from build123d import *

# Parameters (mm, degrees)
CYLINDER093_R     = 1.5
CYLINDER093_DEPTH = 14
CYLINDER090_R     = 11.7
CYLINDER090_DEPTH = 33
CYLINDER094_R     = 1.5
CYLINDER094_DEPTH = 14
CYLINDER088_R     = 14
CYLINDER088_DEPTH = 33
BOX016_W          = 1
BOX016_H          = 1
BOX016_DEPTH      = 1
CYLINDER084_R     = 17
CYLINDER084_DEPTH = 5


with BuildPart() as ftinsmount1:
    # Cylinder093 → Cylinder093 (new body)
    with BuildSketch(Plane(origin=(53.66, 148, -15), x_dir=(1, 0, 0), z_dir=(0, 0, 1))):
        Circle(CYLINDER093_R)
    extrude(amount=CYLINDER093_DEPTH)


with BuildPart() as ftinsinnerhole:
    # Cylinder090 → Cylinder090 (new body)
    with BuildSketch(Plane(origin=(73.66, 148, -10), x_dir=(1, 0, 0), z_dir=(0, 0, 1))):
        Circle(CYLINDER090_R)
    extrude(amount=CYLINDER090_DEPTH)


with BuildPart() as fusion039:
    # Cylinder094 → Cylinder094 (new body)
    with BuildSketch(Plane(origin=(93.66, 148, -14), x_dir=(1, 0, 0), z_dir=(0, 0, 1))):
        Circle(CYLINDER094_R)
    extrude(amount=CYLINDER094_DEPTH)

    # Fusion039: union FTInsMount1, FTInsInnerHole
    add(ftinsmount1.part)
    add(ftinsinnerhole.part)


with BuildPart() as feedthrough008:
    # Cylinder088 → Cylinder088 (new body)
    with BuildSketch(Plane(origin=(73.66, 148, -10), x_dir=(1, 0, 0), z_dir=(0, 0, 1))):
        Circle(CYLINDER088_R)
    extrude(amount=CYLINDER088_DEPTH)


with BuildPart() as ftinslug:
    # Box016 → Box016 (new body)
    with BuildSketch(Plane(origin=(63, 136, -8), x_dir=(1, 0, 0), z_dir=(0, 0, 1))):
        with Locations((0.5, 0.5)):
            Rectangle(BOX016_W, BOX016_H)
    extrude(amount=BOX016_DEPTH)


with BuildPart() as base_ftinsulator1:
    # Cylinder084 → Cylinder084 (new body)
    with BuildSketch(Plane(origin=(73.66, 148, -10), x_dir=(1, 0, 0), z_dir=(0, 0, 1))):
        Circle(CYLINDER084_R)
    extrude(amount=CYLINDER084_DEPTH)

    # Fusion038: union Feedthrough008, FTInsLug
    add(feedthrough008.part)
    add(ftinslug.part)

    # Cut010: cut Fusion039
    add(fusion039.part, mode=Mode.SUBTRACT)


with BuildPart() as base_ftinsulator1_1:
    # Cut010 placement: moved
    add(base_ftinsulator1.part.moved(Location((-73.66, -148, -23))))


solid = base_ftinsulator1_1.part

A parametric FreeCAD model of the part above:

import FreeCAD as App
import Part
import Sketcher
from FreeCAD import Vector

doc = App.newDocument("Part")
body = doc.addObject("PartDesign::Body", "Body")

# Sketch on XY plane
sketch1 = body.newObject("Sketcher::SketchObject", "Sketch")
sketch1.AttachmentSupport = (doc.getObject("XY_Plane"), [""])
sketch1.MapMode = "FlatFace"
sketch1.AttachmentOffset = App.Placement(Vector(0, 0, -15), App.Rotation())
sketch1.addGeometry(Part.Circle(Vector(53.7, 148, 0), Vector(0, 0, 1), 1.5), False)
sketch1.addConstraint(Sketcher.Constraint("Diameter", 0, 3.0))
sketch1.addConstraint(Sketcher.Constraint("DistanceY", -1, 1, 0, 3, 148.0))
sketch1.addConstraint(Sketcher.Constraint("DistanceX", -1, 1, 0, 3, 53.66))
pad1 = body.newObject("PartDesign::Pad", "Pad")
pad1.Profile = sketch1
pad1.Length = 14
body2 = doc.addObject("PartDesign::Body", "Body001")

# Sketch on XY plane
sketch2 = body2.newObject("Sketcher::SketchObject", "Sketch001")
sketch2.AttachmentSupport = (doc.getObject("XY_Plane001"), [""])
sketch2.MapMode = "FlatFace"
sketch2.AttachmentOffset = App.Placement(Vector(0, 0, -10), App.Rotation())
sketch2.addGeometry(Part.Circle(Vector(74, 148, 0), Vector(0, 0, 1), 12), False)
sketch2.addConstraint(Sketcher.Constraint("Diameter", 0, 23.4))
sketch2.addConstraint(Sketcher.Constraint("DistanceY", -1, 1, 0, 3, 148.0))
sketch2.addConstraint(Sketcher.Constraint("DistanceX", -1, 1, 0, 3, 73.66))
pad2 = body2.newObject("PartDesign::Pad", "Pad001")
pad2.Profile = sketch2
pad2.Length = 33
body3 = doc.addObject("PartDesign::Body", "Body002")
body3.AllowCompound = True

# Sketch on XY plane
sketch3 = body3.newObject("Sketcher::SketchObject", "Sketch002")
sketch3.AttachmentSupport = (doc.getObject("XY_Plane002"), [""])
sketch3.MapMode = "FlatFace"
sketch3.AttachmentOffset = App.Placement(Vector(0, 0, -14), App.Rotation())
sketch3.addGeometry(Part.Circle(Vector(93.7, 148, 0), Vector(0, 0, 1), 1.5), False)
sketch3.addConstraint(Sketcher.Constraint("Diameter", 0, 3.0))
sketch3.addConstraint(Sketcher.Constraint("DistanceY", -1, 1, 0, 3, 148.0))
sketch3.addConstraint(Sketcher.Constraint("DistanceX", -1, 1, 0, 3, 93.66))
pad3 = body3.newObject("PartDesign::Pad", "Pad002")
pad3.Profile = sketch3
pad3.Length = 14
doc.recompute()

boolean = body3.newObject("PartDesign::Boolean", "Boolean")
boolean.Type = "Fuse"
boolean.addObjects([body])
doc.recompute()

boolean2 = body3.newObject("PartDesign::Boolean", "Boolean001")
boolean2.Type = "Fuse"
boolean2.addObjects([body2])
body4 = doc.addObject("PartDesign::Body", "Body003")

# Sketch on XY plane
sketch4 = body4.newObject("Sketcher::SketchObject", "Sketch003")
sketch4.AttachmentSupport = (doc.getObject("XY_Plane003"), [""])
sketch4.MapMode = "FlatFace"
sketch4.AttachmentOffset = App.Placement(Vector(0, 0, -10), App.Rotation())
sketch4.addGeometry(Part.Circle(Vector(74, 148, 0), Vector(0, 0, 1), 14), False)
sketch4.addConstraint(Sketcher.Constraint("Diameter", 0, 28.0))
sketch4.addConstraint(Sketcher.Constraint("DistanceY", -1, 1, 0, 3, 148.0))
sketch4.addConstraint(Sketcher.Constraint("DistanceX", -1, 1, 0, 3, 73.66))
pad4 = body4.newObject("PartDesign::Pad", "Pad003")
pad4.Profile = sketch4
pad4.Length = 33
body5 = doc.addObject("PartDesign::Body", "Body004")

# Sketch on XY plane
sketch5 = body5.newObject("Sketcher::SketchObject", "Sketch004")
sketch5.AttachmentSupport = (doc.getObject("XY_Plane004"), [""])
sketch5.MapMode = "FlatFace"
sketch5.AttachmentOffset = App.Placement(Vector(0, 0, -8), App.Rotation())
sketch5.addGeometry(Part.LineSegment(Vector(63, 137, 0), Vector(63, 136, 0)), False)
sketch5.addGeometry(Part.LineSegment(Vector(63, 136, 0), Vector(64, 136, 0)), False)
sketch5.addGeometry(Part.LineSegment(Vector(64, 136, 0), Vector(64, 137, 0)), False)
sketch5.addGeometry(Part.LineSegment(Vector(64, 137, 0), Vector(63, 137, 0)), False)
sketch5.addConstraint(Sketcher.Constraint("Coincident", 0, 2, 1, 1))
sketch5.addConstraint(Sketcher.Constraint("Coincident", 1, 2, 2, 1))
sketch5.addConstraint(Sketcher.Constraint("Coincident", 2, 2, 3, 1))
sketch5.addConstraint(Sketcher.Constraint("Coincident", 3, 2, 0, 1))
sketch5.addConstraint(Sketcher.Constraint("Vertical", 0))
sketch5.addConstraint(Sketcher.Constraint("Horizontal", 1))
sketch5.addConstraint(Sketcher.Constraint("Vertical", 2))
sketch5.addConstraint(Sketcher.Constraint("Horizontal", 3))
sketch5.addConstraint(Sketcher.Constraint("Equal", 3, 0))
sketch5.addConstraint(Sketcher.Constraint("DistanceX", 1, 1, 1, 2, 1.0))
sketch5.addConstraint(Sketcher.Constraint("DistanceX", -1, 1, 0, 2, 63.0))
sketch5.addConstraint(Sketcher.Constraint("DistanceY", -1, 1, 0, 2, 136.0))
pad5 = body5.newObject("PartDesign::Pad", "Pad004")
pad5.Profile = sketch5
pad5.Length = 1
body6 = doc.addObject("PartDesign::Body", "Body005")

# Sketch on XY plane
sketch6 = body6.newObject("Sketcher::SketchObject", "Sketch005")
sketch6.AttachmentSupport = (doc.getObject("XY_Plane005"), [""])
sketch6.MapMode = "FlatFace"
sketch6.AttachmentOffset = App.Placement(Vector(0, 0, -10), App.Rotation())
sketch6.addGeometry(Part.Circle(Vector(74, 148, 0), Vector(0, 0, 1), 17), False)
sketch6.addConstraint(Sketcher.Constraint("Diameter", 0, 34.0))
sketch6.addConstraint(Sketcher.Constraint("DistanceY", -1, 1, 0, 3, 148.0))
sketch6.addConstraint(Sketcher.Constraint("DistanceX", -1, 1, 0, 3, 73.66))
pad6 = body6.newObject("PartDesign::Pad", "Pad005")
pad6.Profile = sketch6
pad6.Length = 5
doc.recompute()

boolean3 = body6.newObject("PartDesign::Boolean", "Boolean002")
boolean3.Type = "Fuse"
boolean3.addObjects([body4])
doc.recompute()

boolean4 = body6.newObject("PartDesign::Boolean", "Boolean003")
boolean4.Type = "Fuse"
boolean4.addObjects([body5])
doc.recompute()

boolean5 = body6.newObject("PartDesign::Boolean", "Boolean004")
boolean5.Type = "Cut"
boolean5.addObjects([body3])
body7 = doc.addObject("PartDesign::Body", "Body006")
doc.recompute()

body6.Placement = App.Placement(Vector(-73.66, -148, -23), App.Rotation(Vector(0, 0, 1), 0))
boolean6 = body7.newObject("PartDesign::Boolean", "Boolean005")
boolean6.Type = "Fuse"
boolean6.addObjects([body6])

doc.recompute()
